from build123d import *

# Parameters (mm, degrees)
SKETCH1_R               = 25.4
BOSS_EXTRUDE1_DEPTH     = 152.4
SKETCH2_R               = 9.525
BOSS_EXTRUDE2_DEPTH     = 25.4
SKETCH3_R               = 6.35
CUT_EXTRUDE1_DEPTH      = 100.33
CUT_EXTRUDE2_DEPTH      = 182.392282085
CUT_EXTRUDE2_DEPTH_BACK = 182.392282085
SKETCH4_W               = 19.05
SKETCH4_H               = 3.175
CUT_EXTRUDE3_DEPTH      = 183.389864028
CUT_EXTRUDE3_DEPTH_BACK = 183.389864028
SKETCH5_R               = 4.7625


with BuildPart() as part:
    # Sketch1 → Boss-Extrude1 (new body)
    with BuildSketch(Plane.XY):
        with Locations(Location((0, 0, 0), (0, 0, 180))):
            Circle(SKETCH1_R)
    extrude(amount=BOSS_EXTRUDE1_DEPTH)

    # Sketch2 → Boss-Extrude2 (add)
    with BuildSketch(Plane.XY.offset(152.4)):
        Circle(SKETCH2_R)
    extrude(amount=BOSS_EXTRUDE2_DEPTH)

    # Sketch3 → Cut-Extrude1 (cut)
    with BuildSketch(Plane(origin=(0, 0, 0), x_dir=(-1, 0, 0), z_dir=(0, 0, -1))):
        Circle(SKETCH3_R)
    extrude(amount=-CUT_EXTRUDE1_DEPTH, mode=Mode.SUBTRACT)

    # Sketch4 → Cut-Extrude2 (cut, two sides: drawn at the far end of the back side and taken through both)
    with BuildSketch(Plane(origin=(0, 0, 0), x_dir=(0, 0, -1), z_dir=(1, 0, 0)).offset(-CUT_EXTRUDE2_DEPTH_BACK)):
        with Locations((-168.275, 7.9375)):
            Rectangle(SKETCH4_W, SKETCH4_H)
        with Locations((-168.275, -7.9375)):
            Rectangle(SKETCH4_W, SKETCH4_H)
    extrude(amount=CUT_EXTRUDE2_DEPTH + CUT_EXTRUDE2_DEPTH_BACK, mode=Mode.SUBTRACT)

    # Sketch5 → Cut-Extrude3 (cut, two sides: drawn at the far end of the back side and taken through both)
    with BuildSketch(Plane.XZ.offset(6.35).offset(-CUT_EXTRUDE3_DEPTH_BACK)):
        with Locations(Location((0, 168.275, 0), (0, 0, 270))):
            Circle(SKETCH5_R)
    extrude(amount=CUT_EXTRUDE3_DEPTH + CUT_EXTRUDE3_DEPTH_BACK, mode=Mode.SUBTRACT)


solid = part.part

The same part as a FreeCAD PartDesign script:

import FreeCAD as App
import Part
import Sketcher
from FreeCAD import Vector
Q = App.Units.Quantity

doc = App.newDocument("Part")
params = doc.addObject("Spreadsheet::Sheet", "Params")
for row, (alias, value) in enumerate([
    ("sketch1_diameter", "2 in"),
    ("pad1_length", "6 in"),
    ("sketch2_diameter", "0.75 in"),
    ("pad2_length", "1 in"),
    ("sketch3_diameter", "0.5 in"),
    ("pocket1_length", "3.95 in"),
    ("sketch4_height", "0.75 in"),
    ("sketch4_width", "0.125 in"),
    ("sketch5_diameter", "0.375 in"),
], start=1):
    params.set(f"A{row}", alias)
    params.set(f"B{row}", "=" + value)
    params.setAlias(f"B{row}", alias)

body = doc.addObject("PartDesign::Body", "Body")

# Sketch on XY plane
sketch1 = doc.addObject("Sketcher::SketchObject", "Sketch")
body.addObject(sketch1)
sketch1.AttachmentSupport = (doc.XY_Plane, [""])
sketch1.MapMode = "FlatFace"
sketch1.addGeometry(Part.Circle(Vector(0, 0, 0), Vector(0, 0, 1), 25), False)
sketch1.addConstraint(Sketcher.Constraint("Coincident", 0, 3, -1, 1))
sketch1.addConstraint(Sketcher.Constraint("Diameter", 0, Q("2 in")))
sketch1.setExpression("Constraints[1]", "Params.sketch1_diameter")
pad1 = doc.addObject("PartDesign::Pad", "Pad")
body.addObject(pad1)
pad1.Profile = sketch1
pad1.setExpression("Length", "Params.pad1_length")

# Sketch on XY plane
sketch2 = doc.addObject("Sketcher::SketchObject", "Sketch001")
body.addObject(sketch2)
sketch2.AttachmentSupport = (doc.XY_Plane, [""])
sketch2.MapMode = "FlatFace"
sketch2.AttachmentOffset = App.Placement(Vector(0, 0, 6 * 25.4), App.Rotation())
sketch2.addGeometry(Part.Circle(Vector(0, 0, 0), Vector(0, 0, 1), 10), False)
sketch2.addConstraint(Sketcher.Constraint("Coincident", 0, 3, -1, 1))
sketch2.addConstraint(Sketcher.Constraint("Diameter", 0, Q("0.75 in")))
sketch2.setExpression("Constraints[1]", "Params.sketch2_diameter")
pad2 = doc.addObject("PartDesign::Pad", "Pad001")
body.addObject(pad2)
pad2.Profile = sketch2
pad2.setExpression("Length", "Params.pad2_length")

# Sketch on XY plane
sketch3 = doc.addObject("Sketcher::SketchObject", "Sketch002")
body.addObject(sketch3)
sketch3.AttachmentSupport = (doc.XY_Plane, [""])
sketch3.MapMode = "FlatFace"
sketch3.addGeometry(Part.Circle(Vector(0, 0, 0), Vector(0, 0, 1), 6), False)
sketch3.addConstraint(Sketcher.Constraint("Coincident", 0, 3, -1, 1))
sketch3.addConstraint(Sketcher.Constraint("Diameter", 0, Q("0.5 in")))
sketch3.setExpression("Constraints[1]", "Params.sketch3_diameter")
pocket1 = doc.addObject("PartDesign::Pocket", "Pocket")
body.addObject(pocket1)
pocket1.Profile = sketch3
pocket1.setExpression("Length", "Params.pocket1_length")
pocket1.Reversed = True

# Sketch on YZ plane
sketch4 = doc.addObject("Sketcher::SketchObject", "Sketch003")
body.addObject(sketch4)
sketch4.AttachmentSupport = (doc.YZ_Plane, [""])
sketch4.MapMode = "FlatFace"
sketch4.addGeometry(Part.LineSegment(Vector(9.5, 177.8, 0), Vector(6.3, 177.8, 0)), False)
sketch4.addGeometry(Part.LineSegment(Vector(6.3, 177.8, 0), Vector(6.3, 158.8, 0)), False)
sketch4.addGeometry(Part.LineSegment(Vector(6.3, 158.8, 0), Vector(9.5, 158.8, 0)), False)
sketch4.addGeometry(Part.LineSegment(Vector(9.5, 158.8, 0), Vector(9.5, 177.8, 0)), False)
sketch4.addGeometry(Part.LineSegment(Vector(-6.3, 177.8, 0), Vector(-9.5, 177.8, 0)), False)
sketch4.addGeometry(Part.LineSegment(Vector(-9.5, 177.8, 0), Vector(-9.5, 158.8, 0)), False)
sketch4.addGeometry(Part.LineSegment(Vector(-9.5, 158.8, 0), Vector(-6.3, 158.8, 0)), False)
sketch4.addGeometry(Part.LineSegment(Vector(-6.3, 158.8, 0), Vector(-6.3, 177.8, 0)), False)
sketch4.addConstraint(Sketcher.Constraint("Coincident", 0, 2, 1, 1))
sketch4.addConstraint(Sketcher.Constraint("Coincident", 1, 2, 2, 1))
sketch4.addConstraint(Sketcher.Constraint("Coincident", 2, 2, 3, 1))
sketch4.addConstraint(Sketcher.Constraint("Coincident", 3, 2, 0, 1))
sketch4.addConstraint(Sketcher.Constraint("Coincident", 4, 2, 5, 1))
sketch4.addConstraint(Sketcher.Constraint("Coincident", 5, 2, 6, 1))
sketch4.addConstraint(Sketcher.Constraint("Coincident", 6, 2, 7, 1))
sketch4.addConstraint(Sketcher.Constraint("Coincident", 7, 2, 4, 1))
sketch4.addConstraint(Sketcher.Constraint("Horizontal", 0))
sketch4.addConstraint(Sketcher.Constraint("Vertical", 1))
sketch4.addConstraint(Sketcher.Constraint("Horizontal", 2))
sketch4.addConstraint(Sketcher.Constraint("Vertical", 3))
sketch4.addConstraint(Sketcher.Constraint("Horizontal", 4))
sketch4.addConstraint(Sketcher.Constraint("Vertical", 5))
sketch4.addConstraint(Sketcher.Constraint("Horizontal", 6))
sketch4.addConstraint(Sketcher.Constraint("Vertical", 7))
sketch4.addConstraint(Sketcher.Constraint("Symmetric", 3, 2, 4, 2, -2))
sketch4.addConstraint(Sketcher.Constraint("Symmetric", 1, 2, 6, 2, -2))
sketch4.addConstraint(Sketcher.Constraint("DistanceY", -1, 1, 0, 2, Q("7 in")))
sketch4.addConstraint(Sketcher.Constraint("DistanceY", 1, 2, 1, 1, Q("0.75 in")))
sketch4.addConstraint(Sketcher.Constraint("DistanceX", 6, 2, 1, 2, Q("0.5 in")))
sketch4.addConstraint(Sketcher.Constraint("DistanceX", 0, 2, 0, 1, Q("0.125 in")))
sketch4.setExpression("Constraints[19]", "Params.sketch4_height")
sketch4.setExpression("Constraints[21]", "Params.sketch4_width")
pocket2 = doc.addObject("PartDesign::Pocket", "Pocket001")
body.addObject(pocket2)
pocket2.Profile = sketch4
pocket2.Type = "ThroughAll"
pocket2.Midplane = True

# Sketch on XZ plane
sketch5 = doc.addObject("Sketcher::SketchObject", "Sketch004")
body.addObject(sketch5)
sketch5.AttachmentSupport = (doc.XZ_Plane, [""])
sketch5.MapMode = "FlatFace"
sketch5.AttachmentOffset = App.Placement(Vector(0, 0, 0.25 * 25.4), App.Rotation())
sketch5.addGeometry(Part.Circle(Vector(0, 168.3, 0), Vector(0, 0, 1), 4.8), False)
sketch5.addConstraint(Sketcher.Constraint("PointOnObject", 0, 3, -2))
sketch5.addConstraint(Sketcher.Constraint("Diameter", 0, Q("0.375 in")))
sketch5.addConstraint(Sketcher.Constraint("DistanceY", -1, 1, 0, 3, Q("6.625 in")))
sketch5.setExpression("Constraints[1]", "Params.sketch5_diameter")
pocket3 = doc.addObject("PartDesign::Pocket", "Pocket002")
body.addObject(pocket3)
pocket3.Profile = sketch5
pocket3.Type = "ThroughAll"
pocket3.Midplane = True

doc.recompute()
